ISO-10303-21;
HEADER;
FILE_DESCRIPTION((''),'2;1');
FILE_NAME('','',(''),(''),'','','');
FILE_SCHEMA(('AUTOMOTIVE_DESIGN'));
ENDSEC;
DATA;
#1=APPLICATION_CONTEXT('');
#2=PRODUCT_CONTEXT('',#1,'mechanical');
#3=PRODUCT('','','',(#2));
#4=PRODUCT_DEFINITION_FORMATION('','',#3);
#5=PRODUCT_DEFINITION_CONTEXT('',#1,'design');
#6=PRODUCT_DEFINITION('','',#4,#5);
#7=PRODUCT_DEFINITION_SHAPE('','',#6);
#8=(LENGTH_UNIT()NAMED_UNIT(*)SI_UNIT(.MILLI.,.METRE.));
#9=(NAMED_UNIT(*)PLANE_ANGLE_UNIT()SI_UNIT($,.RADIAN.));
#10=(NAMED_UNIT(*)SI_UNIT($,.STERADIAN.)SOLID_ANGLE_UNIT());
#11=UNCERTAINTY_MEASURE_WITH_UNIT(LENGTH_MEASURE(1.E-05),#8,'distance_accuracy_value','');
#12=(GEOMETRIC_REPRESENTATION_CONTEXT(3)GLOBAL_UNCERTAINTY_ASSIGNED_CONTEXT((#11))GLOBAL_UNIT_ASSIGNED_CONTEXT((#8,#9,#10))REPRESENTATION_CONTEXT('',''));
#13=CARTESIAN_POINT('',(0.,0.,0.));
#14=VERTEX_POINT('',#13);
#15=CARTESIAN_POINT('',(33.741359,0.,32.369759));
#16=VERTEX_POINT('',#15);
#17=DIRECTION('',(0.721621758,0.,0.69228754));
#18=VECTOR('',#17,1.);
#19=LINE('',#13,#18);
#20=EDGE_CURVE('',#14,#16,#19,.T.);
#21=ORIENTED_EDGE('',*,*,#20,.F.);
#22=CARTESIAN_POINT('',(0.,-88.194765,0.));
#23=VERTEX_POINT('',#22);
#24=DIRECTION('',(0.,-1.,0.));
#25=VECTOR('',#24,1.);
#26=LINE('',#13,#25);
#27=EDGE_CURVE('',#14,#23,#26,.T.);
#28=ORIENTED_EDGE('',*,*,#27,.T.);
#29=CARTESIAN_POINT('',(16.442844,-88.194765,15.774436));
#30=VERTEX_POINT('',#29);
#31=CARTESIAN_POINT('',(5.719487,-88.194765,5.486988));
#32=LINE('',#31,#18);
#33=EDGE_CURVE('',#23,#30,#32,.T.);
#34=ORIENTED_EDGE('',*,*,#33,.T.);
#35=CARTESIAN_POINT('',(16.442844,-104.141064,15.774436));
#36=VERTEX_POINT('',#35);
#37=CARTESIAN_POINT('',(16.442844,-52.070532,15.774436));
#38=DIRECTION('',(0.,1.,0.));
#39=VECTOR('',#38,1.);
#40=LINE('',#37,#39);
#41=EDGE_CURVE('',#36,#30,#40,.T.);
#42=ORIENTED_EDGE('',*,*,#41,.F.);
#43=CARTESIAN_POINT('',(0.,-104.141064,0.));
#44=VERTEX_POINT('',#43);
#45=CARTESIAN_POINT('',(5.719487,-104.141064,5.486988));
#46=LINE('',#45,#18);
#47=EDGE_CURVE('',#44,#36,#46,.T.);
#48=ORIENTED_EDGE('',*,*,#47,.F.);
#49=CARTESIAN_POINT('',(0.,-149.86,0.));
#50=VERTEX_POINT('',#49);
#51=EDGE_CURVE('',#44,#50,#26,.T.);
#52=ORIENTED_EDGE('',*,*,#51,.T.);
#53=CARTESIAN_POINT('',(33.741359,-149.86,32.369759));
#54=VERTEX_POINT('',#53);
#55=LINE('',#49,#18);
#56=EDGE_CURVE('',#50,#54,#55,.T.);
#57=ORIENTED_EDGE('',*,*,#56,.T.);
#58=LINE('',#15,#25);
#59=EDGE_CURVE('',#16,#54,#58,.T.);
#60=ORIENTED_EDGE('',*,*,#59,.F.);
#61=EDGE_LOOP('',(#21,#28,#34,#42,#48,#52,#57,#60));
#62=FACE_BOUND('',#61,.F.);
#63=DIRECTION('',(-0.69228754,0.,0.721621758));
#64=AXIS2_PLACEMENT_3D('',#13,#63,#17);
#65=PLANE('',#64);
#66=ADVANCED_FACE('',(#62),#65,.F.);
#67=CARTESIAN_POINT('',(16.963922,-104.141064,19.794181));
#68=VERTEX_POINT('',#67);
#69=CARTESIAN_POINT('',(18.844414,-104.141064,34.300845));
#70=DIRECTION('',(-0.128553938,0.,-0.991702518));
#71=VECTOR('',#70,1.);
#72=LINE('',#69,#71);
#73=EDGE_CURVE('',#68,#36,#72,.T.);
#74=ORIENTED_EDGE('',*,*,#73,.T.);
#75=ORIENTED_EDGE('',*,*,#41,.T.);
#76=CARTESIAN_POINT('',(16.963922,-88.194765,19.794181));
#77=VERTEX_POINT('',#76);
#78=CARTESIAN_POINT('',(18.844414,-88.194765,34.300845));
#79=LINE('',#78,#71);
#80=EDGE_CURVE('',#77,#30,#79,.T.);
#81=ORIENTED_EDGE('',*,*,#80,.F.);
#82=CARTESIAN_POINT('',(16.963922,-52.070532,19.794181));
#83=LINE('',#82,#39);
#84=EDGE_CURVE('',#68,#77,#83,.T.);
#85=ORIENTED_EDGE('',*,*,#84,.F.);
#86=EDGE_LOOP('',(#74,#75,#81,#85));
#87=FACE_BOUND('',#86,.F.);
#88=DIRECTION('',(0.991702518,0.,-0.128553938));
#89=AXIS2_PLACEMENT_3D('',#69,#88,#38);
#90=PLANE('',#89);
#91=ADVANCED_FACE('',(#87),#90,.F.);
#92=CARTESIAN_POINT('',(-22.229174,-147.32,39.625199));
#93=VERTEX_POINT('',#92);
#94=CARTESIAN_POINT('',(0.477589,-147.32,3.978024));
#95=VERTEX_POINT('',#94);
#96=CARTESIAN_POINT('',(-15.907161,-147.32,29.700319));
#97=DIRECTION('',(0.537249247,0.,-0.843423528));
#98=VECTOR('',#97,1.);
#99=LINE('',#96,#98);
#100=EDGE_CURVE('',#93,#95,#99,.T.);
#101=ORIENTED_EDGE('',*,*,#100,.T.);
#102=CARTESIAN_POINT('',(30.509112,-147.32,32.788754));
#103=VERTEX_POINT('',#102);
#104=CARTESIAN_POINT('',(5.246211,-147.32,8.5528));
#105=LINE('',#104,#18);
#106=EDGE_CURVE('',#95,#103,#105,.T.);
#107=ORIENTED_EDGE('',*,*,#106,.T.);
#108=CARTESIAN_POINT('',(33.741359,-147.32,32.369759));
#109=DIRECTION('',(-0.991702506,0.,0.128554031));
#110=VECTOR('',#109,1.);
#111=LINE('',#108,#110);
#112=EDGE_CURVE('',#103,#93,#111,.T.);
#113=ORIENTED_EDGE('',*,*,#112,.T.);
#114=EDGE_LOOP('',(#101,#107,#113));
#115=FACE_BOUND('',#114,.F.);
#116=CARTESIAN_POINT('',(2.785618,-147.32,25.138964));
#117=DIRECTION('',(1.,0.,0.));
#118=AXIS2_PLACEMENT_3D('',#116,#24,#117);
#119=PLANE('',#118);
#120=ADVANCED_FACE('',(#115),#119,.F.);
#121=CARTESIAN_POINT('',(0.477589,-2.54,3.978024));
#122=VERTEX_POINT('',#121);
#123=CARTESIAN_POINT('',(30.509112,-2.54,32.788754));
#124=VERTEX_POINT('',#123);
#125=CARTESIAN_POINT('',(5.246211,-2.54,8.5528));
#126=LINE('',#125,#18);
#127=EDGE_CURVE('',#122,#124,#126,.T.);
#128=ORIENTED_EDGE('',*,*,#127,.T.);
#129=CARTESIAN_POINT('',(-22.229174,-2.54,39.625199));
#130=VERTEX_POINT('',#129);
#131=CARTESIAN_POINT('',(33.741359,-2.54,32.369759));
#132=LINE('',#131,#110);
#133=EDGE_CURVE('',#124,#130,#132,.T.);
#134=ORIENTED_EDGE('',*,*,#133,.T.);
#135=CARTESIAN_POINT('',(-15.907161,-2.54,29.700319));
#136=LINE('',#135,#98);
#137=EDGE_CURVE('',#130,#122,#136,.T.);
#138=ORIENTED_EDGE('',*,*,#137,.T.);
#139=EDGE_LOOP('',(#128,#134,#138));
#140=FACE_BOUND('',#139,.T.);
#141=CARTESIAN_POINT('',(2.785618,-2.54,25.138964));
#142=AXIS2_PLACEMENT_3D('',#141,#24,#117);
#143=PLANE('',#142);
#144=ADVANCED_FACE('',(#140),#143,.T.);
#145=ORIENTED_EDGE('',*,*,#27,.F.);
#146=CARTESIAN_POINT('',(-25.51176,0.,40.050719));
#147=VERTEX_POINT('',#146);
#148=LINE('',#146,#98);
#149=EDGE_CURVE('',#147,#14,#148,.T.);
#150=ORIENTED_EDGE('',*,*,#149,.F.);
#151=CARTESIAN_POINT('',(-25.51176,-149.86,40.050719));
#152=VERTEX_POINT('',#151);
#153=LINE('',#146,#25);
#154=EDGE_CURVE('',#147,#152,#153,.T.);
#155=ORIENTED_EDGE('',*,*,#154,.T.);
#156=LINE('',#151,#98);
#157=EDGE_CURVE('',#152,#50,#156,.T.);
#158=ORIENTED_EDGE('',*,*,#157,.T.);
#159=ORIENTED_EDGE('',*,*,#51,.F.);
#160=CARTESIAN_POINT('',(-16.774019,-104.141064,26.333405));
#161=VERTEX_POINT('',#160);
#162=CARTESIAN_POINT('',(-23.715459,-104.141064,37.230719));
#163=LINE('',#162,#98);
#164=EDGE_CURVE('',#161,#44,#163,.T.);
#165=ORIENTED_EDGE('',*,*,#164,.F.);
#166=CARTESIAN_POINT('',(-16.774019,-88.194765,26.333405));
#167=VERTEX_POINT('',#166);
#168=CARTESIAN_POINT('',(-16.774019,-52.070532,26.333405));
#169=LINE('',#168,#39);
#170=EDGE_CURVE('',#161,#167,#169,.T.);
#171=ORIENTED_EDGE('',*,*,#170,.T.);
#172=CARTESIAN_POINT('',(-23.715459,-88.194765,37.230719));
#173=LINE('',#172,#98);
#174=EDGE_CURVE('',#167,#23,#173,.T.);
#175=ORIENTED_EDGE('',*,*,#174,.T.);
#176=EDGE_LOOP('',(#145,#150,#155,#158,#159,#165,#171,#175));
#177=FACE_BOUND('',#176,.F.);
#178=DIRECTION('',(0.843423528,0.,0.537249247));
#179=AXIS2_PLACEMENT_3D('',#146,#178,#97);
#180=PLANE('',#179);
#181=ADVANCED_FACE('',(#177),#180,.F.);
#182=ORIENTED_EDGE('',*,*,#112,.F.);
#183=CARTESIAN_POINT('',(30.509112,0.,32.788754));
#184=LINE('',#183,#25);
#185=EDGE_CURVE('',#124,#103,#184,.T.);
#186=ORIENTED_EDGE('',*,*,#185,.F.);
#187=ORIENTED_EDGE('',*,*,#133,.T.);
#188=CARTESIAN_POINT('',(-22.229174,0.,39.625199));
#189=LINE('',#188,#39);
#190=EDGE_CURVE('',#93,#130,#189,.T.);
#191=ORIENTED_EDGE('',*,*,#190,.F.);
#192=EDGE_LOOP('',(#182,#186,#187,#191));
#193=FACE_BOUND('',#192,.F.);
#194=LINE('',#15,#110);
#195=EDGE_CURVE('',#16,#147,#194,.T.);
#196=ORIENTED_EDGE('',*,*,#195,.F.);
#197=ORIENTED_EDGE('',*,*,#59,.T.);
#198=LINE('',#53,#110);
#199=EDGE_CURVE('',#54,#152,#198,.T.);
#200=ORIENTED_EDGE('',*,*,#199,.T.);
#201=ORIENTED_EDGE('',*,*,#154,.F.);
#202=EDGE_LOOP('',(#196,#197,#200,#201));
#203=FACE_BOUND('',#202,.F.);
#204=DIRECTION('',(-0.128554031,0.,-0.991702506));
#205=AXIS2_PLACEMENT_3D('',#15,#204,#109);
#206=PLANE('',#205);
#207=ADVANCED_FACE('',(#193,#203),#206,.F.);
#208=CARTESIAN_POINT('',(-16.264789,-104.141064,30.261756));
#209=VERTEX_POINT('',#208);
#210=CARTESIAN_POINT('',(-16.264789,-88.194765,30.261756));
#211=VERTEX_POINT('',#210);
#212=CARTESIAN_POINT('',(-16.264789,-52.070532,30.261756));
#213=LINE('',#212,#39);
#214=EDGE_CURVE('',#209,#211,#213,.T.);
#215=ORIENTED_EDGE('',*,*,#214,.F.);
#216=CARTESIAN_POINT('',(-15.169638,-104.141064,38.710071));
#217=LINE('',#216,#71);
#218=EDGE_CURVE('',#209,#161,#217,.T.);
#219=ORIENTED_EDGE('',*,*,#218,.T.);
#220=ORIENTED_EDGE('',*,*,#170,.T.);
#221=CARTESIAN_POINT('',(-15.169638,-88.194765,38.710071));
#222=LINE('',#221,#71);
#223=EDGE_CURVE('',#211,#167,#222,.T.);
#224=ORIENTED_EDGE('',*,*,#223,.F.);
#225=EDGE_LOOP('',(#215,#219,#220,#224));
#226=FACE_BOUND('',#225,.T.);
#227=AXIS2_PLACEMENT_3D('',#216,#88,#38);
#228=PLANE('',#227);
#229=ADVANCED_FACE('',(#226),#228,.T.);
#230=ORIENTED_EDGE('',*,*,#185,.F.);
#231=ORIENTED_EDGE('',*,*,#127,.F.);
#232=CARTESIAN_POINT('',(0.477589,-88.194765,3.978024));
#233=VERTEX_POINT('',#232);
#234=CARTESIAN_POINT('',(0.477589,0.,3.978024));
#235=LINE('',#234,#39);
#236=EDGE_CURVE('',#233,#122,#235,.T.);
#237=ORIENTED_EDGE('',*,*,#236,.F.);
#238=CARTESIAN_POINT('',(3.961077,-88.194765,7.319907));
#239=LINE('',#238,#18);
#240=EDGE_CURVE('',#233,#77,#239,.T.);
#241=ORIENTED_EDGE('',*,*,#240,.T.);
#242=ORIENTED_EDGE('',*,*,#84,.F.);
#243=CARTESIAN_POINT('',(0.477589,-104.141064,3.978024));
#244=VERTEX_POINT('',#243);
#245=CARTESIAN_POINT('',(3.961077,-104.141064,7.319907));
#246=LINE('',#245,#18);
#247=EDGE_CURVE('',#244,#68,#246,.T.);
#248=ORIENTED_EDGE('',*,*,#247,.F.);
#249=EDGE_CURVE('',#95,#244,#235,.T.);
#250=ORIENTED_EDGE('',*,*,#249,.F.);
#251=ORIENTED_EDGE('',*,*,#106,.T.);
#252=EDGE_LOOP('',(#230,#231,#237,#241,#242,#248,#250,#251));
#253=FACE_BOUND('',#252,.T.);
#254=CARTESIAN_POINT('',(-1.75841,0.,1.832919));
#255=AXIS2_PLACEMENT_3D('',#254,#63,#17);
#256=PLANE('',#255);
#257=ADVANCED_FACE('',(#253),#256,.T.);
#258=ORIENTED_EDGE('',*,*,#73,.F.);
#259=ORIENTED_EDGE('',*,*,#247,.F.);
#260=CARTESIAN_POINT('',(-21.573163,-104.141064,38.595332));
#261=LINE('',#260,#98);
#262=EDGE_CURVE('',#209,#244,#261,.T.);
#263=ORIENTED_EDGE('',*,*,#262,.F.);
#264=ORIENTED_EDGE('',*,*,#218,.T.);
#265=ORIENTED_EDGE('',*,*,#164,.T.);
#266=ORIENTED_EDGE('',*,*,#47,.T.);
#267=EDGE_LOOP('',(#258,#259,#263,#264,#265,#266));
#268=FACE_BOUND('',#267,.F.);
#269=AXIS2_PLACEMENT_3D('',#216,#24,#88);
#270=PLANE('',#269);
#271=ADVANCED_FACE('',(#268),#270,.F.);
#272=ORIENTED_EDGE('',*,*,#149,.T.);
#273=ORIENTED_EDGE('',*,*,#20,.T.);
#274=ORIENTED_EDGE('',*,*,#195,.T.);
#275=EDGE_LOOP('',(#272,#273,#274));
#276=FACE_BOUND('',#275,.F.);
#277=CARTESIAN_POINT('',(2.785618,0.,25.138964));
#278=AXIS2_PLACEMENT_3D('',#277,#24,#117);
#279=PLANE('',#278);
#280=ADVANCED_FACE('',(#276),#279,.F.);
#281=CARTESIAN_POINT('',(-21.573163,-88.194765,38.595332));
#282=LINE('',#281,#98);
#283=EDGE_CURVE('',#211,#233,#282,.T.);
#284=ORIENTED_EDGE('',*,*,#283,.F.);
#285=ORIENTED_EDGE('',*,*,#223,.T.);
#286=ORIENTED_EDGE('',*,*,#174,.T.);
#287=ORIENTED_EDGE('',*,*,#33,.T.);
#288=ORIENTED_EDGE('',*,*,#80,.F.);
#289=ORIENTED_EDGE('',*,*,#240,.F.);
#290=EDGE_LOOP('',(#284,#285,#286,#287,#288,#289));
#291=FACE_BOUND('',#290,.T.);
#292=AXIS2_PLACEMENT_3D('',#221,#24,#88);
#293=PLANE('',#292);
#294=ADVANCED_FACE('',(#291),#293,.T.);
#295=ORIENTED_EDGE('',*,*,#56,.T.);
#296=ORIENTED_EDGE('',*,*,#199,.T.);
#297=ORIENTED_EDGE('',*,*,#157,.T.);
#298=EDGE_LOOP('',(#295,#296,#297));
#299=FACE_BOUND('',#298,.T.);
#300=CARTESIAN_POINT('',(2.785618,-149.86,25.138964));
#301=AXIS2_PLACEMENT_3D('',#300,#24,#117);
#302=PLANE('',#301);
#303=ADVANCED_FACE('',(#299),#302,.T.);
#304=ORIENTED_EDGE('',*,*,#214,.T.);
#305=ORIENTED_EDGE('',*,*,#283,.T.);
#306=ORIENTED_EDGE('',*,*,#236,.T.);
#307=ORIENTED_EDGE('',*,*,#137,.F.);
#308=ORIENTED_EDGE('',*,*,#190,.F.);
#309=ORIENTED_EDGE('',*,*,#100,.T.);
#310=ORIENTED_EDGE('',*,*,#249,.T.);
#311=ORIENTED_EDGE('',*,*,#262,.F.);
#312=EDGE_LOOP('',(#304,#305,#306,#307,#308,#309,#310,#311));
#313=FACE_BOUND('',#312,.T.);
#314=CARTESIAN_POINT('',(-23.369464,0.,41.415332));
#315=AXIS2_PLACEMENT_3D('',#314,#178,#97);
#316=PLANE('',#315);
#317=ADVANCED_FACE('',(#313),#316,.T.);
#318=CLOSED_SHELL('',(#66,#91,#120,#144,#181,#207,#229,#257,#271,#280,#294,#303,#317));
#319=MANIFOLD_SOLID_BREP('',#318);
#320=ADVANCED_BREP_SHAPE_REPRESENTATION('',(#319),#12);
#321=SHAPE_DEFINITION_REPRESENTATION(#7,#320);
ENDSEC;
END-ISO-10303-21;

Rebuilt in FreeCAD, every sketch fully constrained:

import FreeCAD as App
import Part
import Sketcher

V = App.Vector
Q = App.Units.Quantity


def faces_at(feature, points):
    """Names of the faces that lie closest to the given points."""
    faces = feature.Shape.Faces
    near = lambda p: min(range(len(faces)), key=lambda i: faces[i].distToShape(Part.Vertex(*p))[0])
    return sorted({f"Face{near(p) + 1}" for p in points})

doc = App.newDocument("Part")
body = doc.addObject("PartDesign::Body", "Body")

# Sketch on XZ plane
sketch1 = body.newObject("Sketcher::SketchObject", "Sketch")
sketch1.AttachmentSupport = (doc.getObject("XZ_Plane"), [""])
sketch1.MapMode = "FlatFace"
sketch1.addGeometry([
    Part.LineSegment(V(-26, 40, 0), V(0, 0, 0)),
    Part.LineSegment(V(0, 0, 0), V(34, 32, 0)),
    Part.LineSegment(V(34, 32, 0), V(-26, 40, 0)),
], False)
sketch1.addConstraint([
    Sketcher.Constraint("Coincident", 0, 2, 1, 1),
    Sketcher.Constraint("Coincident", 1, 2, 2, 1),
    Sketcher.Constraint("Coincident", 2, 2, 0, 1),
    Sketcher.Constraint("Coincident", 0, 2, -1, 1),
    Sketcher.Constraint("DistanceX", -1, 1, 1, 2, Q("1.3284 in")),
    Sketcher.Constraint("DistanceY", -1, 1, 1, 2, Q("1.2744 in")),
    Sketcher.Constraint("DistanceX", 2, 2, -1, 1, Q("1.0044 in")),
    Sketcher.Constraint("DistanceY", -1, 1, 2, 2, Q("1.5768 in")),
])
pad1 = body.newObject("PartDesign::Pad", "Pad")
pad1.Profile = sketch1
pad1.Length = Q("5.9 in")
doc.recompute()

thickness = body.newObject("PartDesign::Thickness", "Thickness")
thickness.Base = (pad1, faces_at(pad1, [(4.115, -74.93, 36.21)]))
thickness.Value = Q("0.1 in")
thickness.Reversed = True
thickness.Join = "Arc"

# Sketch on an angled plane
sketch2 = body.newObject("Sketcher::SketchObject", "Sketch001")
sketch2.Placement = App.Placement(V(4.684349, 0, 36.136408), App.Rotation(V(0.991702518, 0, -0.128553938), V(0, 0.999999999, 0), V(0.128553938, 0, 0.991702518), "ZXY"))
sketch2.addGeometry([
    Part.LineSegment(V(-20, -88, 0), V(-20, -104, 0)),
    Part.LineSegment(V(-20, -104, 0), V(14, -104, 0)),
    Part.LineSegment(V(14, -104, 0), V(14, -88, 0)),
    Part.LineSegment(V(14, -88, 0), V(-20, -88, 0)),
], False)
sketch2.addConstraint([
    Sketcher.Constraint("Coincident", 0, 2, 1, 1),
    Sketcher.Constraint("Coincident", 1, 2, 2, 1),
    Sketcher.Constraint("Coincident", 2, 2, 3, 1),
    Sketcher.Constraint("Coincident", 3, 2, 0, 1),
    Sketcher.Constraint("Vertical", 0),
    Sketcher.Constraint("Horizontal", 1),
    Sketcher.Constraint("Vertical", 2),
    Sketcher.Constraint("Horizontal", 3),
    Sketcher.Constraint("DistanceY", 0, 2, 0, 1, Q("15.946299 mm")),
    Sketcher.Constraint("DistanceX", 1, 1, 1, 2, Q("34.298644 mm")),
    Sketcher.Constraint("DistanceX", -1, 1, 1, 2, Q("14.278541 mm")),
    Sketcher.Constraint("DistanceY", 0, 2, -1, 1, Q("104.141063 mm")),
])
pocket1 = body.newObject("PartDesign::Pocket", "Pocket")
pocket1.Profile = sketch2
pocket1.Length = Q("3.71 in")

doc.recompute()
